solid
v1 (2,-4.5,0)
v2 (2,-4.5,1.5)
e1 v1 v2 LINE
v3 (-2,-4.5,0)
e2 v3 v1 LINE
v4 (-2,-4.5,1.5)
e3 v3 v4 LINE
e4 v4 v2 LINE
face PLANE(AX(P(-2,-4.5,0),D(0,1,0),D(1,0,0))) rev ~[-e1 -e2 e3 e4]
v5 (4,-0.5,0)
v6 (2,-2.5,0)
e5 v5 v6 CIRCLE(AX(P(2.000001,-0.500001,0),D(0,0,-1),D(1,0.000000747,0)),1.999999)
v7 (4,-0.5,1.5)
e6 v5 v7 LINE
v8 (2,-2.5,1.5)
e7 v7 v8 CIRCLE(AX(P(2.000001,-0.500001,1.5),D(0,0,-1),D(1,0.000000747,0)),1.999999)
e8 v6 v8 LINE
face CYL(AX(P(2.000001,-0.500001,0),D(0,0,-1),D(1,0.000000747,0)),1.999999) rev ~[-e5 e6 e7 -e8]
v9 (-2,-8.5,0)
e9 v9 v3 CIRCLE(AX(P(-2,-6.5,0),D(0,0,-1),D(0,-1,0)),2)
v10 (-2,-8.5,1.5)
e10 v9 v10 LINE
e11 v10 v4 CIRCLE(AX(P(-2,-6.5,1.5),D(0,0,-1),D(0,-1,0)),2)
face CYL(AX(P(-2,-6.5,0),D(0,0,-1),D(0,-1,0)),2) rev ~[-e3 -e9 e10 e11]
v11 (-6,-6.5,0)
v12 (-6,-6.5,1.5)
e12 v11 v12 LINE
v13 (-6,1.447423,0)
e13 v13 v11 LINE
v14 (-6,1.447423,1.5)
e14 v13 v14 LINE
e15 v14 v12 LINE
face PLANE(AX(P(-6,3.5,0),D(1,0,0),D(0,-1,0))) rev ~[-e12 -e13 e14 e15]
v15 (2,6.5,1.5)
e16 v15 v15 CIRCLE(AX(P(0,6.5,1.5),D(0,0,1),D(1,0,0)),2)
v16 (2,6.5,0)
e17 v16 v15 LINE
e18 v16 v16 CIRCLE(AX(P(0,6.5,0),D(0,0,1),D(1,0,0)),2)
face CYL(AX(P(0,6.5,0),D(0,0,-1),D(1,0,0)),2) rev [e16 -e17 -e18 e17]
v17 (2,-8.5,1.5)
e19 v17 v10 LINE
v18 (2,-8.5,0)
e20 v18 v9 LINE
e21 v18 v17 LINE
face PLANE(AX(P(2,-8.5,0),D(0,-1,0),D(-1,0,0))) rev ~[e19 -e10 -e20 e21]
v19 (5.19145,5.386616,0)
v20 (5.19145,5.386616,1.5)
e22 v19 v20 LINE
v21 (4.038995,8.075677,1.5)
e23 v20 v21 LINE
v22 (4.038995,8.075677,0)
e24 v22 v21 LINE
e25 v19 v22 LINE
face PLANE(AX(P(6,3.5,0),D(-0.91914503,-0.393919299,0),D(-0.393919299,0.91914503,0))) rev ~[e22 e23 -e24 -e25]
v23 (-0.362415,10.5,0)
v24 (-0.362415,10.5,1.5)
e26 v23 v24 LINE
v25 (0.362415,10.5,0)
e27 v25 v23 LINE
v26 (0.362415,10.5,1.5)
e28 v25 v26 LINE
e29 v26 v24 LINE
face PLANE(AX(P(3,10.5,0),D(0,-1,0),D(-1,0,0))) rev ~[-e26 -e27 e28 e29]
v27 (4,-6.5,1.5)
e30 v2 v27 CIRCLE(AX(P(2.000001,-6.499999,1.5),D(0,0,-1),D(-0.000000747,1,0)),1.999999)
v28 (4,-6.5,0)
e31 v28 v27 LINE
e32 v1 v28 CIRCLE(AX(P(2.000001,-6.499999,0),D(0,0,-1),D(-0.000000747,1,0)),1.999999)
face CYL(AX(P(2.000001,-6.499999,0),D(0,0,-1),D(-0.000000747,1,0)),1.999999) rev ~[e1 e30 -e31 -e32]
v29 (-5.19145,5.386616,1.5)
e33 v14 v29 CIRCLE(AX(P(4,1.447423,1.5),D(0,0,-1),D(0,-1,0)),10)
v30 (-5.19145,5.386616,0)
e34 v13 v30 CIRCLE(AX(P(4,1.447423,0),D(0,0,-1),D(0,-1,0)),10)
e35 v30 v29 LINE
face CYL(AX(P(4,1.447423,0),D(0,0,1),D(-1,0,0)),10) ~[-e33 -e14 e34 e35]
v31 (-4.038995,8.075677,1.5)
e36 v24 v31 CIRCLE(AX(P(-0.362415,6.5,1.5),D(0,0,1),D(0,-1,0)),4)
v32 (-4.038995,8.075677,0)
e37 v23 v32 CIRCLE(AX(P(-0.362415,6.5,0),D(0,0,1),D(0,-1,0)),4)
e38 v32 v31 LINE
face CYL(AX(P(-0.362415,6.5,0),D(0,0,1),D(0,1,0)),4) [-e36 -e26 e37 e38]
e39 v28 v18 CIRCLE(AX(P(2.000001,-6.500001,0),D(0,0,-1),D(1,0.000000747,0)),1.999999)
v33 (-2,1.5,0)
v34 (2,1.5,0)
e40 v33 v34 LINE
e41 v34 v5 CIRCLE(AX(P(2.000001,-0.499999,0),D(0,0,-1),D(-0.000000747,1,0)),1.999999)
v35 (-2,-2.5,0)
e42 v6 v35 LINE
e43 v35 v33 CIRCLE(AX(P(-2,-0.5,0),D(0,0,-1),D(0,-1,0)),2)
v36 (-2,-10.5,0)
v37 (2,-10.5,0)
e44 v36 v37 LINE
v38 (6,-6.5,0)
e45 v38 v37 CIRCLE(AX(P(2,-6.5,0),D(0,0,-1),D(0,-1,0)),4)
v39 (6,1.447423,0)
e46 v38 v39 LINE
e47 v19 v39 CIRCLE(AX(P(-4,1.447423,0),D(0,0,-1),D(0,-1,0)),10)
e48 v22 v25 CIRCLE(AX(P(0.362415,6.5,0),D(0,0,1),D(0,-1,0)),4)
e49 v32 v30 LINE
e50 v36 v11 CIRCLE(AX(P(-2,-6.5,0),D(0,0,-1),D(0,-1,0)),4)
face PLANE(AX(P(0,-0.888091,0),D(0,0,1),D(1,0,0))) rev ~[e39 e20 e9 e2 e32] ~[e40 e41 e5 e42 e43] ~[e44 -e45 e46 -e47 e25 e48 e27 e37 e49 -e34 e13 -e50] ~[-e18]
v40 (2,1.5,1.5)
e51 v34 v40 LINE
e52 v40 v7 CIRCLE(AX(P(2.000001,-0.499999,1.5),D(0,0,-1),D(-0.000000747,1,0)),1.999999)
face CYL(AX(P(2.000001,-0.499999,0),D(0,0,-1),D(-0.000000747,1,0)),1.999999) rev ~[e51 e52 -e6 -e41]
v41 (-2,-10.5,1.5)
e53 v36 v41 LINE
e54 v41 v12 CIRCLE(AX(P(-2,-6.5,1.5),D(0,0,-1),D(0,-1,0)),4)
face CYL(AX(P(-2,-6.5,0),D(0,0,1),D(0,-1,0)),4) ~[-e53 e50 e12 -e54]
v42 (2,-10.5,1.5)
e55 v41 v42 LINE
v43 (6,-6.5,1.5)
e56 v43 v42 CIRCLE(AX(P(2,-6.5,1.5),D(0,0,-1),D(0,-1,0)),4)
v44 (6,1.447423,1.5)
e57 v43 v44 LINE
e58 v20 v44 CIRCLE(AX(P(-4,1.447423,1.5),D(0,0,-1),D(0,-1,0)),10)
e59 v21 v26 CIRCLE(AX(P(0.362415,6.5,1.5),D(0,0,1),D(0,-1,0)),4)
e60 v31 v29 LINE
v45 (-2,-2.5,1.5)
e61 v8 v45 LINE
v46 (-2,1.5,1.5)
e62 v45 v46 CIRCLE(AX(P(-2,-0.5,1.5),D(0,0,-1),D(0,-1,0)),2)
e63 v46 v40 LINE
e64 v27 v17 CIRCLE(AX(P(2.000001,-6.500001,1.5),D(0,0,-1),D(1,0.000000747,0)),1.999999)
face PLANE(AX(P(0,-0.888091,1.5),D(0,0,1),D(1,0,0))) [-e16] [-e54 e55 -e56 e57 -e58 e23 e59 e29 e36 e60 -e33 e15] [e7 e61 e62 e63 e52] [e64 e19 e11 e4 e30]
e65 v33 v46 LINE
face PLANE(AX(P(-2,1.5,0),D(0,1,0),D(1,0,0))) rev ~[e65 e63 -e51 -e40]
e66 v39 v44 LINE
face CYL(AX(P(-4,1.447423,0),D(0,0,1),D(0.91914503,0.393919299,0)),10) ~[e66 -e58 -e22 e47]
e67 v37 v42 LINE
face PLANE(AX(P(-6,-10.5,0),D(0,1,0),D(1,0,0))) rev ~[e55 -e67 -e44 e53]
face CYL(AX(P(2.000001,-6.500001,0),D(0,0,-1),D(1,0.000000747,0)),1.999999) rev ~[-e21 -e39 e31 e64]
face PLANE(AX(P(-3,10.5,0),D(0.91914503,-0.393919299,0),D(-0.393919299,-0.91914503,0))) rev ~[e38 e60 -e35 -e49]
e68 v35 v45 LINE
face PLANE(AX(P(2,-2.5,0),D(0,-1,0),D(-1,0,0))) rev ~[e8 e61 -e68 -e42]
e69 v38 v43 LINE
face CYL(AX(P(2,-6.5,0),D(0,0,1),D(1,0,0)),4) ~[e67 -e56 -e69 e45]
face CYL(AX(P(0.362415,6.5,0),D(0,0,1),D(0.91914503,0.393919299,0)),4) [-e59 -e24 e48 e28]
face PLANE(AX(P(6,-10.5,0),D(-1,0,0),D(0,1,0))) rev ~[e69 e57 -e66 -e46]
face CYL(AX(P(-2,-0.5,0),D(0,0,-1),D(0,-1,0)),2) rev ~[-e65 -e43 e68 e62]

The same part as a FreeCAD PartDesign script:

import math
import FreeCAD as App
import Part
import Sketcher
Q = App.Units.Quantity


def edges_at(feature, points):
    """Names of the edges that pass closest to the given points."""
    edges = feature.Shape.Edges
    near = lambda p: min(range(len(edges)), key=lambda i: edges[i].distToShape(Part.Vertex(*p))[0])
    return sorted({f"Edge{near(p) + 1}" for p in points})

doc = App.newDocument("Part")
body = doc.addObject("PartDesign::Body", "Body")

# Sketch on XY plane
sketch1 = body.newObject("Sketcher::SketchObject", "Sketch")
sketch1.AttachmentSupport = (doc.getObject("XY_Plane"), [""])
sketch1.MapMode = "FlatFace"
sketch1.addGeometry(Part.LineSegment(App.Vector(6, 3.5, 0), App.Vector(3, 10.5, 0)), False)
sketch1.addGeometry(Part.LineSegment(App.Vector(3, 10.5, 0), App.Vector(-3, 10.5, 0)), False)
sketch1.addGeometry(Part.LineSegment(App.Vector(-3, 10.5, 0), App.Vector(-6, 3.5, 0)), False)
sketch1.addGeometry(Part.LineSegment(App.Vector(-6, 3.5, 0), App.Vector(-6, -10.5, 0)), False)
sketch1.addGeometry(Part.LineSegment(App.Vector(-6, -10.5, 0), App.Vector(6, -10.5, 0)), False)
sketch1.addGeometry(Part.LineSegment(App.Vector(6, -10.5, 0), App.Vector(6, 3.5, 0)), False)
sketch1.addGeometry(Part.LineSegment(App.Vector(2, -8.5, 0), App.Vector(-2, -8.5, 0)), False)
sketch1.addGeometry(Part.ArcOfCircle(Part.Circle(App.Vector(-2, -6.5, 0), App.Vector(0, 0, 1), 2), math.radians(90), math.radians(270)), False)
sketch1.addGeometry(Part.LineSegment(App.Vector(-2, -4.5, 0), App.Vector(2, -4.5, 0)), False)
sketch1.addGeometry(Part.ArcOfCircle(Part.Circle(App.Vector(2.000001, -6.499999, 0), App.Vector(0, 0, 1), 1.999999), math.radians(-0.000043), math.radians(90.000043)), False)
sketch1.addGeometry(Part.ArcOfCircle(Part.Circle(App.Vector(2.000001, -6.500001, 0), App.Vector(0, 0, 1), 1.999999), math.radians(-90.000043), math.radians(0.000043)), False)
sketch1.addGeometry(Part.LineSegment(App.Vector(2, -2.5, 0), App.Vector(-2, -2.5, 0)), False)
sketch1.addGeometry(Part.ArcOfCircle(Part.Circle(App.Vector(-2, -0.5, 0), App.Vector(0, 0, 1), 2), math.radians(90), math.radians(270)), False)
sketch1.addGeometry(Part.LineSegment(App.Vector(-2, 1.5, 0), App.Vector(2, 1.5, 0)), False)
sketch1.addGeometry(Part.ArcOfCircle(Part.Circle(App.Vector(2.000001, -0.499999, 0), App.Vector(0, 0, 1), 1.999999), math.radians(-0.000043), math.radians(90.000043)), False)
sketch1.addGeometry(Part.ArcOfCircle(Part.Circle(App.Vector(2.000001, -0.500001, 0), App.Vector(0, 0, 1), 1.999999), math.radians(-90.000043), math.radians(0.000043)), False)
sketch1.addGeometry(Part.Circle(App.Vector(0, 6.5, 0), App.Vector(0, 0, 1), 2), False)
sketch1.addConstraint(Sketcher.Constraint("Coincident", 0, 2, 1, 1))
sketch1.addConstraint(Sketcher.Constraint("Coincident", 1, 2, 2, 1))
sketch1.addConstraint(Sketcher.Constraint("Coincident", 2, 2, 3, 1))
sketch1.addConstraint(Sketcher.Constraint("Coincident", 3, 2, 4, 1))
sketch1.addConstraint(Sketcher.Constraint("Coincident", 4, 2, 5, 1))
sketch1.addConstraint(Sketcher.Constraint("Coincident", 5, 2, 0, 1))
sketch1.addConstraint(Sketcher.Constraint("Tangent", 6, 2, 7, 2))
sketch1.addConstraint(Sketcher.Constraint("Tangent", 7, 1, 8, 1))
sketch1.addConstraint(Sketcher.Constraint("Tangent", 8, 2, 9, 2))
sketch1.addConstraint(Sketcher.Constraint("Tangent", 9, 1, 10, 2))
sketch1.addConstraint(Sketcher.Constraint("Tangent", 10, 1, 6, 1))
sketch1.addConstraint(Sketcher.Constraint("Tangent", 11, 2, 12, 2))
sketch1.addConstraint(Sketcher.Constraint("Tangent", 12, 1, 13, 1))
sketch1.addConstraint(Sketcher.Constraint("Tangent", 13, 2, 14, 2))
sketch1.addConstraint(Sketcher.Constraint("Tangent", 14, 1, 15, 2))
sketch1.addConstraint(Sketcher.Constraint("Tangent", 15, 1, 11, 1))
sketch1.addConstraint(Sketcher.Constraint("Horizontal", 1))
sketch1.addConstraint(Sketcher.Constraint("Vertical", 3))
sketch1.addConstraint(Sketcher.Constraint("Horizontal", 4))
sketch1.addConstraint(Sketcher.Constraint("Vertical", 5))
sketch1.addConstraint(Sketcher.Constraint("Horizontal", 6))
sketch1.addConstraint(Sketcher.Constraint("Horizontal", 8))
sketch1.addConstraint(Sketcher.Constraint("Horizontal", 11))
sketch1.addConstraint(Sketcher.Constraint("Horizontal", 13))
sketch1.addConstraint(Sketcher.Constraint("Equal", 7, 9))
sketch1.addConstraint(Sketcher.Constraint("Equal", 10, 12))
sketch1.addConstraint(Sketcher.Constraint("Equal", 12, 14))
sketch1.addConstraint(Sketcher.Constraint("Equal", 15, 16))
sketch1.addConstraint(Sketcher.Constraint("Symmetric", 2, 2, 5, 2, -2))
sketch1.addConstraint(Sketcher.Constraint("PointOnObject", 16, 3, -2))
sketch1.addConstraint(Sketcher.Constraint("Horizontal", 10, 3, 9, 1))
sketch1.addConstraint(Sketcher.Constraint("Horizontal", 15, 3, 14, 1))
sketch1.addConstraint(Sketcher.Constraint("Vertical", 7, 3, 12, 3))
sketch1.addConstraint(Sketcher.Constraint("Vertical", 10, 3, 14, 3))
sketch1.addConstraint(Sketcher.Constraint("Equal", 0, 2))
sketch1.addConstraint(Sketcher.Constraint("Diameter", 16, Q("4 mm")))
sketch1.addConstraint(Sketcher.Constraint("DistanceX", 1, 2, 1, 1, Q("6 mm")))
sketch1.addConstraint(Sketcher.Constraint("DistanceX", 4, 1, 4, 2, Q("12 mm")))
sketch1.addConstraint(Sketcher.Constraint("DistanceX", 6, 2, 6, 1, Q("4 mm")))
sketch1.addConstraint(Sketcher.Constraint("DistanceY", 3, 2, 3, 1, Q("14 mm")))
sketch1.addConstraint(Sketcher.Constraint("DistanceX", 7, 3, -1, 1, Q("2 mm")))
sketch1.addConstraint(Sketcher.Constraint("DistanceY", 7, 3, 12, 3, Q("6 mm")))
sketch1.addConstraint(Sketcher.Constraint("DistanceY", 14, 3, 16, 3, Q("6.999999 mm")))
sketch1.addConstraint(Sketcher.Constraint("DistanceY", 16, 3, 0, 2, Q("4 mm")))
sketch1.addConstraint(Sketcher.Constraint("DistanceY", 12, 3, 2, 2, Q("4 mm")))
sketch1.addConstraint(Sketcher.Constraint("DistanceY", 7, 3, -1, 1, Q("6.5 mm")))
pad1 = body.newObject("PartDesign::Pad", "Pad")
pad1.Profile = sketch1
pad1.Length = 1.5
doc.recompute()

fillet = body.newObject("PartDesign::Fillet", "Fillet")
fillet.Base = (pad1, edges_at(pad1, [(3, 10.5, 0.75), (-3, 10.5, 0.75)]))
fillet.Radius = 4
doc.recompute()

fillet2 = body.newObject("PartDesign::Fillet", "Fillet001")
fillet2.Base = (fillet, edges_at(fillet, [(-6, 3.5, 0.75), (6, 3.5, 0.75)]))
fillet2.Radius = 10
doc.recompute()

fillet3 = body.newObject("PartDesign::Fillet", "Fillet002")
fillet3.Base = (fillet2, edges_at(fillet2, [(-6, -10.5, 0.75), (6, -10.5, 0.75)]))
fillet3.Radius = 4

doc.recompute()
